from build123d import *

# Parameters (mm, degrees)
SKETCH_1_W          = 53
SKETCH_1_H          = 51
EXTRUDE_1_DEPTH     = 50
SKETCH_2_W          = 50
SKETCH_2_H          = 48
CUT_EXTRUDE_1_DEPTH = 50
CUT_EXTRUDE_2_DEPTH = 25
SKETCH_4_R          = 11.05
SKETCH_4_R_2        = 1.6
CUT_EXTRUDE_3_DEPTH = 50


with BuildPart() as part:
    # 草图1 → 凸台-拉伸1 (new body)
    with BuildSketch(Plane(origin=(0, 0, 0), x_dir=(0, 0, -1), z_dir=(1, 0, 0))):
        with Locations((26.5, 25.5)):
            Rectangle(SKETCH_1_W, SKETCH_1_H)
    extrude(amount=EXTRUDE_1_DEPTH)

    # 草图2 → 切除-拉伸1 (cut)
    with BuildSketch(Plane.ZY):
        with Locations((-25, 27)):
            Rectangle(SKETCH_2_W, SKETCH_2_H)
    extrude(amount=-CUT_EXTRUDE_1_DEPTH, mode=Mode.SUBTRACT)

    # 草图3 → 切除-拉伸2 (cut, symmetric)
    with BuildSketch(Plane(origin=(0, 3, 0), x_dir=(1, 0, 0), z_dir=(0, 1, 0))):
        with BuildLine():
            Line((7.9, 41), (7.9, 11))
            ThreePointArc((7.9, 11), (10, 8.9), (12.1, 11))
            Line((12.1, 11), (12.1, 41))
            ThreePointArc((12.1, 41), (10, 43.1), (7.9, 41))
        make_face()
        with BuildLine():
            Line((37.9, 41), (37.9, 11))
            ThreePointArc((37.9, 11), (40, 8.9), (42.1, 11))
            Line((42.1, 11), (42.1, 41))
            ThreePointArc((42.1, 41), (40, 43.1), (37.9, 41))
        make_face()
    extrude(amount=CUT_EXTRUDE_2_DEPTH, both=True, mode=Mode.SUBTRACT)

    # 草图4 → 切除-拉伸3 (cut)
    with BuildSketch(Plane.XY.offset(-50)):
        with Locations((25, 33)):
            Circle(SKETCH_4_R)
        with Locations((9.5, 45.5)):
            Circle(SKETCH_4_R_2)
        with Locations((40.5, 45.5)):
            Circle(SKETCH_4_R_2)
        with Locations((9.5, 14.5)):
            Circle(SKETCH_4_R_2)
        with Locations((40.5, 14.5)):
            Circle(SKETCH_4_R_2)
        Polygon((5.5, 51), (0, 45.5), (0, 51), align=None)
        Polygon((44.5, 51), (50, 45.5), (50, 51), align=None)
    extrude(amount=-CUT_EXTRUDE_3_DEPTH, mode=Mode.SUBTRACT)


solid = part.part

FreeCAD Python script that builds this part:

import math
import FreeCAD as App
import Part
import Sketcher
from FreeCAD import Vector

doc = App.newDocument("Part")
body = doc.addObject("PartDesign::Body", "Body")

# Sketch on YZ plane
sketch1 = doc.addObject("Sketcher::SketchObject", "Sketch")
body.addObject(sketch1)
sketch1.AttachmentSupport = (doc.YZ_Plane, [""])
sketch1.MapMode = "FlatFace"
sketch1.addGeometry([
    Part.LineSegment(Vector(51, 0, 0), Vector(0, 0, 0)),
    Part.LineSegment(Vector(0, 0, 0), Vector(0, -53, 0)),
    Part.LineSegment(Vector(0, -53, 0), Vector(51, -53, 0)),
    Part.LineSegment(Vector(51, -53, 0), Vector(51, 0, 0)),
], False)
sketch1.addConstraint([
    Sketcher.Constraint("Coincident", 0, 2, 1, 1),
    Sketcher.Constraint("Coincident", 1, 2, 2, 1),
    Sketcher.Constraint("Coincident", 2, 2, 3, 1),
    Sketcher.Constraint("Coincident", 3, 2, 0, 1),
    Sketcher.Constraint("Horizontal", 0),
    Sketcher.Constraint("Vertical", 1),
    Sketcher.Constraint("Horizontal", 2),
    Sketcher.Constraint("Vertical", 3),
    Sketcher.Constraint("Coincident", 0, 2, -1, 1),
    Sketcher.Constraint("DistanceX", 0, 2, 0, 1, 51.0),
    Sketcher.Constraint("DistanceY", 1, 2, 1, 1, 53.0),
])
pad1 = doc.addObject("PartDesign::Pad", "Pad")
body.addObject(pad1)
pad1.Profile = sketch1
pad1.Length = 50

# Sketch on YZ plane
sketch2 = doc.addObject("Sketcher::SketchObject", "Sketch001")
body.addObject(sketch2)
sketch2.AttachmentSupport = (doc.YZ_Plane, [""])
sketch2.MapMode = "FlatFace"
sketch2.addGeometry([
    Part.LineSegment(Vector(51, -50, 0), Vector(3, -50, 0)),
    Part.LineSegment(Vector(3, -50, 0), Vector(3, 0, 0)),
    Part.LineSegment(Vector(3, 0, 0), Vector(51, 0, 0)),
    Part.LineSegment(Vector(51, 0, 0), Vector(51, -50, 0)),
], False)
sketch2.addConstraint([
    Sketcher.Constraint("Coincident", 0, 2, 1, 1),
    Sketcher.Constraint("Coincident", 1, 2, 2, 1),
    Sketcher.Constraint("Coincident", 2, 2, 3, 1),
    Sketcher.Constraint("Coincident", 3, 2, 0, 1),
    Sketcher.Constraint("Horizontal", 0),
    Sketcher.Constraint("Vertical", 1),
    Sketcher.Constraint("Horizontal", 2),
    Sketcher.Constraint("Vertical", 3),
    Sketcher.Constraint("PointOnObject", 1, 2, -1),
    Sketcher.Constraint("DistanceX", 0, 2, 0, 1, 48.0),
    Sketcher.Constraint("DistanceY", 1, 1, 1, 2, 50.0),
    Sketcher.Constraint("DistanceX", -1, 1, 0, 2, 3.0),
])
pocket1 = doc.addObject("PartDesign::Pocket", "Pocket")
body.addObject(pocket1)
pocket1.Profile = sketch2
pocket1.Length = 50
pocket1.Reversed = True

# Sketch on XZ plane
sketch3 = doc.addObject("Sketcher::SketchObject", "Sketch002")
body.addObject(sketch3)
sketch3.AttachmentSupport = (doc.XZ_Plane, [""])
sketch3.MapMode = "FlatFace"
sketch3.AttachmentOffset = App.Placement(Vector(0, 0, -3), App.Rotation())
sketch3.addGeometry([
    Part.LineSegment(Vector(7.9, -41, 0), Vector(7.9, -11, 0)),  # 0
    Part.ArcOfCircle(Part.Circle(Vector(10, -11, 0), Vector(0, 0, 1), 2.1), math.radians(0), math.radians(180)),  # 1
    Part.LineSegment(Vector(12.1, -11, 0), Vector(12.1, -41, 0)),  # 2
    Part.ArcOfCircle(Part.Circle(Vector(10, -41, 0), Vector(0, 0, 1), 2.1), math.radians(180), math.radians(360)),  # 3
    Part.LineSegment(Vector(37.9, -41, 0), Vector(37.9, -11, 0)),  # 4
    Part.ArcOfCircle(Part.Circle(Vector(40, -11, 0), Vector(0, 0, 1), 2.1), math.radians(0), math.radians(180)),  # 5
    Part.LineSegment(Vector(42.1, -11, 0), Vector(42.1, -41, 0)),  # 6
    Part.ArcOfCircle(Part.Circle(Vector(40, -41, 0), Vector(0, 0, 1), 2.1), math.radians(180), math.radians(360)),  # 7
], False)
sketch3.addConstraint([
    Sketcher.Constraint("Tangent", 0, 2, 1, 2),
    Sketcher.Constraint("Tangent", 1, 1, 2, 1),
    Sketcher.Constraint("Tangent", 2, 2, 3, 2),
    Sketcher.Constraint("Tangent", 3, 1, 0, 1),
    Sketcher.Constraint("Tangent", 4, 2, 5, 2),
    Sketcher.Constraint("Tangent", 5, 1, 6, 1),
    Sketcher.Constraint("Tangent", 6, 2, 7, 2),
    Sketcher.Constraint("Tangent", 7, 1, 4, 1),
    Sketcher.Constraint("Vertical", 0),
    Sketcher.Constraint("Vertical", 2),
    Sketcher.Constraint("Vertical", 4),
    Sketcher.Constraint("Vertical", 6),
    Sketcher.Constraint("Equal", 3, 5),
    Sketcher.Constraint("Horizontal", 1, 3, 5, 3),
    Sketcher.Constraint("Horizontal", 3, 3, 7, 3),
    Sketcher.Constraint("Radius", 1, 2.1),
    Sketcher.Constraint("DistanceY", 0, 1, 0, 2, 30.0),
    Sketcher.Constraint("DistanceX", -1, 1, 1, 3, 10.0),
    Sketcher.Constraint("DistanceY", 1, 3, -1, 1, 11.0),
    Sketcher.Constraint("DistanceX", -1, 1, 5, 3, 40.0),
])
pocket2 = doc.addObject("PartDesign::Pocket", "Pocket001")
body.addObject(pocket2)
pocket2.Profile = sketch3
pocket2.Length = 50
pocket2.Midplane = True

# Sketch on XY plane
sketch4 = doc.addObject("Sketcher::SketchObject", "Sketch003")
body.addObject(sketch4)
sketch4.AttachmentSupport = (doc.XY_Plane, [""])
sketch4.MapMode = "FlatFace"
sketch4.AttachmentOffset = App.Placement(Vector(0, 0, -50), App.Rotation())
sketch4.addGeometry([
    Part.Circle(Vector(25, 33, 0), Vector(0, 0, 1), 11.1),  # 0
    Part.Circle(Vector(9.5, 45.5, 0), Vector(0, 0, 1), 1.6),  # 1
    Part.Circle(Vector(40.5, 45.5, 0), Vector(0, 0, 1), 1.6),  # 2
    Part.Circle(Vector(9.5, 14.5, 0), Vector(0, 0, 1), 1.6),  # 3
    Part.Circle(Vector(40.5, 14.5, 0), Vector(0, 0, 1), 1.6),  # 4
    Part.LineSegment(Vector(0, 45.5, 0), Vector(5.5, 51, 0)),  # 5
    Part.LineSegment(Vector(5.5, 51, 0), Vector(0, 51, 0)),  # 6
    Part.LineSegment(Vector(0, 51, 0), Vector(0, 45.5, 0)),  # 7
    Part.LineSegment(Vector(44.5, 51, 0), Vector(50, 45.5, 0)),  # 8
    Part.LineSegment(Vector(50, 45.5, 0), Vector(50, 51, 0)),  # 9
    Part.LineSegment(Vector(50, 51, 0), Vector(44.5, 51, 0)),  # 10
], False)
sketch4.addConstraint([
    Sketcher.Constraint("Coincident", 5, 2, 6, 1),
    Sketcher.Constraint("Coincident", 6, 2, 7, 1),
    Sketcher.Constraint("Coincident", 7, 2, 5, 1),
    Sketcher.Constraint("Coincident", 8, 2, 9, 1),
    Sketcher.Constraint("Coincident", 9, 2, 10, 1),
    Sketcher.Constraint("Coincident", 10, 2, 8, 1),
    Sketcher.Constraint("Horizontal", 6),
    Sketcher.Constraint("Vertical", 7),
    Sketcher.Constraint("Vertical", 9),
    Sketcher.Constraint("Horizontal", 10),
    Sketcher.Constraint("Equal", 1, 2),
    Sketcher.Constraint("Equal", 2, 3),
    Sketcher.Constraint("Equal", 3, 4),
    Sketcher.Constraint("PointOnObject", 6, 2, -2),
    Sketcher.Constraint("Perpendicular", 5, 8),
    Sketcher.Constraint("Horizontal", 1, 3, 2, 3),
    Sketcher.Constraint("Horizontal", 3, 3, 4, 3),
    Sketcher.Constraint("Horizontal", 2, 3, 7, 2),
    Sketcher.Constraint("Horizontal", 7, 2, 8, 2),
    Sketcher.Constraint("Horizontal", 6, 2, 9, 2),
    Sketcher.Constraint("Vertical", 1, 3, 3, 3),
    Sketcher.Constraint("Vertical", 2, 3, 4, 3),
    Sketcher.Constraint("Equal", 6, 10),
    Sketcher.Constraint("Diameter", 0, 22.1),
    Sketcher.Constraint("Diameter", 1, 3.2),
    Sketcher.Constraint("DistanceX", 6, 2, 6, 1, 5.5),
    Sketcher.Constraint("DistanceX", -1, 1, 0, 3, 25.0),
    Sketcher.Constraint("DistanceY", -1, 1, 0, 3, 33.0),
    Sketcher.Constraint("DistanceY", -1, 1, 5, 2, 51.0),
    Sketcher.Constraint("DistanceX", -1, 1, 8, 2, 50.0),
    Sketcher.Constraint("DistanceX", 1, 3, 2, 3, 31.0),
    Sketcher.Constraint("DistanceY", 3, 3, 1, 3, 31.0),
    Sketcher.Constraint("DistanceX", 5, 2, 1, 3, 4.0),
])
pocket3 = doc.addObject("PartDesign::Pocket", "Pocket002")
body.addObject(pocket3)
pocket3.Profile = sketch4
pocket3.Length = 50

doc.recompute()
